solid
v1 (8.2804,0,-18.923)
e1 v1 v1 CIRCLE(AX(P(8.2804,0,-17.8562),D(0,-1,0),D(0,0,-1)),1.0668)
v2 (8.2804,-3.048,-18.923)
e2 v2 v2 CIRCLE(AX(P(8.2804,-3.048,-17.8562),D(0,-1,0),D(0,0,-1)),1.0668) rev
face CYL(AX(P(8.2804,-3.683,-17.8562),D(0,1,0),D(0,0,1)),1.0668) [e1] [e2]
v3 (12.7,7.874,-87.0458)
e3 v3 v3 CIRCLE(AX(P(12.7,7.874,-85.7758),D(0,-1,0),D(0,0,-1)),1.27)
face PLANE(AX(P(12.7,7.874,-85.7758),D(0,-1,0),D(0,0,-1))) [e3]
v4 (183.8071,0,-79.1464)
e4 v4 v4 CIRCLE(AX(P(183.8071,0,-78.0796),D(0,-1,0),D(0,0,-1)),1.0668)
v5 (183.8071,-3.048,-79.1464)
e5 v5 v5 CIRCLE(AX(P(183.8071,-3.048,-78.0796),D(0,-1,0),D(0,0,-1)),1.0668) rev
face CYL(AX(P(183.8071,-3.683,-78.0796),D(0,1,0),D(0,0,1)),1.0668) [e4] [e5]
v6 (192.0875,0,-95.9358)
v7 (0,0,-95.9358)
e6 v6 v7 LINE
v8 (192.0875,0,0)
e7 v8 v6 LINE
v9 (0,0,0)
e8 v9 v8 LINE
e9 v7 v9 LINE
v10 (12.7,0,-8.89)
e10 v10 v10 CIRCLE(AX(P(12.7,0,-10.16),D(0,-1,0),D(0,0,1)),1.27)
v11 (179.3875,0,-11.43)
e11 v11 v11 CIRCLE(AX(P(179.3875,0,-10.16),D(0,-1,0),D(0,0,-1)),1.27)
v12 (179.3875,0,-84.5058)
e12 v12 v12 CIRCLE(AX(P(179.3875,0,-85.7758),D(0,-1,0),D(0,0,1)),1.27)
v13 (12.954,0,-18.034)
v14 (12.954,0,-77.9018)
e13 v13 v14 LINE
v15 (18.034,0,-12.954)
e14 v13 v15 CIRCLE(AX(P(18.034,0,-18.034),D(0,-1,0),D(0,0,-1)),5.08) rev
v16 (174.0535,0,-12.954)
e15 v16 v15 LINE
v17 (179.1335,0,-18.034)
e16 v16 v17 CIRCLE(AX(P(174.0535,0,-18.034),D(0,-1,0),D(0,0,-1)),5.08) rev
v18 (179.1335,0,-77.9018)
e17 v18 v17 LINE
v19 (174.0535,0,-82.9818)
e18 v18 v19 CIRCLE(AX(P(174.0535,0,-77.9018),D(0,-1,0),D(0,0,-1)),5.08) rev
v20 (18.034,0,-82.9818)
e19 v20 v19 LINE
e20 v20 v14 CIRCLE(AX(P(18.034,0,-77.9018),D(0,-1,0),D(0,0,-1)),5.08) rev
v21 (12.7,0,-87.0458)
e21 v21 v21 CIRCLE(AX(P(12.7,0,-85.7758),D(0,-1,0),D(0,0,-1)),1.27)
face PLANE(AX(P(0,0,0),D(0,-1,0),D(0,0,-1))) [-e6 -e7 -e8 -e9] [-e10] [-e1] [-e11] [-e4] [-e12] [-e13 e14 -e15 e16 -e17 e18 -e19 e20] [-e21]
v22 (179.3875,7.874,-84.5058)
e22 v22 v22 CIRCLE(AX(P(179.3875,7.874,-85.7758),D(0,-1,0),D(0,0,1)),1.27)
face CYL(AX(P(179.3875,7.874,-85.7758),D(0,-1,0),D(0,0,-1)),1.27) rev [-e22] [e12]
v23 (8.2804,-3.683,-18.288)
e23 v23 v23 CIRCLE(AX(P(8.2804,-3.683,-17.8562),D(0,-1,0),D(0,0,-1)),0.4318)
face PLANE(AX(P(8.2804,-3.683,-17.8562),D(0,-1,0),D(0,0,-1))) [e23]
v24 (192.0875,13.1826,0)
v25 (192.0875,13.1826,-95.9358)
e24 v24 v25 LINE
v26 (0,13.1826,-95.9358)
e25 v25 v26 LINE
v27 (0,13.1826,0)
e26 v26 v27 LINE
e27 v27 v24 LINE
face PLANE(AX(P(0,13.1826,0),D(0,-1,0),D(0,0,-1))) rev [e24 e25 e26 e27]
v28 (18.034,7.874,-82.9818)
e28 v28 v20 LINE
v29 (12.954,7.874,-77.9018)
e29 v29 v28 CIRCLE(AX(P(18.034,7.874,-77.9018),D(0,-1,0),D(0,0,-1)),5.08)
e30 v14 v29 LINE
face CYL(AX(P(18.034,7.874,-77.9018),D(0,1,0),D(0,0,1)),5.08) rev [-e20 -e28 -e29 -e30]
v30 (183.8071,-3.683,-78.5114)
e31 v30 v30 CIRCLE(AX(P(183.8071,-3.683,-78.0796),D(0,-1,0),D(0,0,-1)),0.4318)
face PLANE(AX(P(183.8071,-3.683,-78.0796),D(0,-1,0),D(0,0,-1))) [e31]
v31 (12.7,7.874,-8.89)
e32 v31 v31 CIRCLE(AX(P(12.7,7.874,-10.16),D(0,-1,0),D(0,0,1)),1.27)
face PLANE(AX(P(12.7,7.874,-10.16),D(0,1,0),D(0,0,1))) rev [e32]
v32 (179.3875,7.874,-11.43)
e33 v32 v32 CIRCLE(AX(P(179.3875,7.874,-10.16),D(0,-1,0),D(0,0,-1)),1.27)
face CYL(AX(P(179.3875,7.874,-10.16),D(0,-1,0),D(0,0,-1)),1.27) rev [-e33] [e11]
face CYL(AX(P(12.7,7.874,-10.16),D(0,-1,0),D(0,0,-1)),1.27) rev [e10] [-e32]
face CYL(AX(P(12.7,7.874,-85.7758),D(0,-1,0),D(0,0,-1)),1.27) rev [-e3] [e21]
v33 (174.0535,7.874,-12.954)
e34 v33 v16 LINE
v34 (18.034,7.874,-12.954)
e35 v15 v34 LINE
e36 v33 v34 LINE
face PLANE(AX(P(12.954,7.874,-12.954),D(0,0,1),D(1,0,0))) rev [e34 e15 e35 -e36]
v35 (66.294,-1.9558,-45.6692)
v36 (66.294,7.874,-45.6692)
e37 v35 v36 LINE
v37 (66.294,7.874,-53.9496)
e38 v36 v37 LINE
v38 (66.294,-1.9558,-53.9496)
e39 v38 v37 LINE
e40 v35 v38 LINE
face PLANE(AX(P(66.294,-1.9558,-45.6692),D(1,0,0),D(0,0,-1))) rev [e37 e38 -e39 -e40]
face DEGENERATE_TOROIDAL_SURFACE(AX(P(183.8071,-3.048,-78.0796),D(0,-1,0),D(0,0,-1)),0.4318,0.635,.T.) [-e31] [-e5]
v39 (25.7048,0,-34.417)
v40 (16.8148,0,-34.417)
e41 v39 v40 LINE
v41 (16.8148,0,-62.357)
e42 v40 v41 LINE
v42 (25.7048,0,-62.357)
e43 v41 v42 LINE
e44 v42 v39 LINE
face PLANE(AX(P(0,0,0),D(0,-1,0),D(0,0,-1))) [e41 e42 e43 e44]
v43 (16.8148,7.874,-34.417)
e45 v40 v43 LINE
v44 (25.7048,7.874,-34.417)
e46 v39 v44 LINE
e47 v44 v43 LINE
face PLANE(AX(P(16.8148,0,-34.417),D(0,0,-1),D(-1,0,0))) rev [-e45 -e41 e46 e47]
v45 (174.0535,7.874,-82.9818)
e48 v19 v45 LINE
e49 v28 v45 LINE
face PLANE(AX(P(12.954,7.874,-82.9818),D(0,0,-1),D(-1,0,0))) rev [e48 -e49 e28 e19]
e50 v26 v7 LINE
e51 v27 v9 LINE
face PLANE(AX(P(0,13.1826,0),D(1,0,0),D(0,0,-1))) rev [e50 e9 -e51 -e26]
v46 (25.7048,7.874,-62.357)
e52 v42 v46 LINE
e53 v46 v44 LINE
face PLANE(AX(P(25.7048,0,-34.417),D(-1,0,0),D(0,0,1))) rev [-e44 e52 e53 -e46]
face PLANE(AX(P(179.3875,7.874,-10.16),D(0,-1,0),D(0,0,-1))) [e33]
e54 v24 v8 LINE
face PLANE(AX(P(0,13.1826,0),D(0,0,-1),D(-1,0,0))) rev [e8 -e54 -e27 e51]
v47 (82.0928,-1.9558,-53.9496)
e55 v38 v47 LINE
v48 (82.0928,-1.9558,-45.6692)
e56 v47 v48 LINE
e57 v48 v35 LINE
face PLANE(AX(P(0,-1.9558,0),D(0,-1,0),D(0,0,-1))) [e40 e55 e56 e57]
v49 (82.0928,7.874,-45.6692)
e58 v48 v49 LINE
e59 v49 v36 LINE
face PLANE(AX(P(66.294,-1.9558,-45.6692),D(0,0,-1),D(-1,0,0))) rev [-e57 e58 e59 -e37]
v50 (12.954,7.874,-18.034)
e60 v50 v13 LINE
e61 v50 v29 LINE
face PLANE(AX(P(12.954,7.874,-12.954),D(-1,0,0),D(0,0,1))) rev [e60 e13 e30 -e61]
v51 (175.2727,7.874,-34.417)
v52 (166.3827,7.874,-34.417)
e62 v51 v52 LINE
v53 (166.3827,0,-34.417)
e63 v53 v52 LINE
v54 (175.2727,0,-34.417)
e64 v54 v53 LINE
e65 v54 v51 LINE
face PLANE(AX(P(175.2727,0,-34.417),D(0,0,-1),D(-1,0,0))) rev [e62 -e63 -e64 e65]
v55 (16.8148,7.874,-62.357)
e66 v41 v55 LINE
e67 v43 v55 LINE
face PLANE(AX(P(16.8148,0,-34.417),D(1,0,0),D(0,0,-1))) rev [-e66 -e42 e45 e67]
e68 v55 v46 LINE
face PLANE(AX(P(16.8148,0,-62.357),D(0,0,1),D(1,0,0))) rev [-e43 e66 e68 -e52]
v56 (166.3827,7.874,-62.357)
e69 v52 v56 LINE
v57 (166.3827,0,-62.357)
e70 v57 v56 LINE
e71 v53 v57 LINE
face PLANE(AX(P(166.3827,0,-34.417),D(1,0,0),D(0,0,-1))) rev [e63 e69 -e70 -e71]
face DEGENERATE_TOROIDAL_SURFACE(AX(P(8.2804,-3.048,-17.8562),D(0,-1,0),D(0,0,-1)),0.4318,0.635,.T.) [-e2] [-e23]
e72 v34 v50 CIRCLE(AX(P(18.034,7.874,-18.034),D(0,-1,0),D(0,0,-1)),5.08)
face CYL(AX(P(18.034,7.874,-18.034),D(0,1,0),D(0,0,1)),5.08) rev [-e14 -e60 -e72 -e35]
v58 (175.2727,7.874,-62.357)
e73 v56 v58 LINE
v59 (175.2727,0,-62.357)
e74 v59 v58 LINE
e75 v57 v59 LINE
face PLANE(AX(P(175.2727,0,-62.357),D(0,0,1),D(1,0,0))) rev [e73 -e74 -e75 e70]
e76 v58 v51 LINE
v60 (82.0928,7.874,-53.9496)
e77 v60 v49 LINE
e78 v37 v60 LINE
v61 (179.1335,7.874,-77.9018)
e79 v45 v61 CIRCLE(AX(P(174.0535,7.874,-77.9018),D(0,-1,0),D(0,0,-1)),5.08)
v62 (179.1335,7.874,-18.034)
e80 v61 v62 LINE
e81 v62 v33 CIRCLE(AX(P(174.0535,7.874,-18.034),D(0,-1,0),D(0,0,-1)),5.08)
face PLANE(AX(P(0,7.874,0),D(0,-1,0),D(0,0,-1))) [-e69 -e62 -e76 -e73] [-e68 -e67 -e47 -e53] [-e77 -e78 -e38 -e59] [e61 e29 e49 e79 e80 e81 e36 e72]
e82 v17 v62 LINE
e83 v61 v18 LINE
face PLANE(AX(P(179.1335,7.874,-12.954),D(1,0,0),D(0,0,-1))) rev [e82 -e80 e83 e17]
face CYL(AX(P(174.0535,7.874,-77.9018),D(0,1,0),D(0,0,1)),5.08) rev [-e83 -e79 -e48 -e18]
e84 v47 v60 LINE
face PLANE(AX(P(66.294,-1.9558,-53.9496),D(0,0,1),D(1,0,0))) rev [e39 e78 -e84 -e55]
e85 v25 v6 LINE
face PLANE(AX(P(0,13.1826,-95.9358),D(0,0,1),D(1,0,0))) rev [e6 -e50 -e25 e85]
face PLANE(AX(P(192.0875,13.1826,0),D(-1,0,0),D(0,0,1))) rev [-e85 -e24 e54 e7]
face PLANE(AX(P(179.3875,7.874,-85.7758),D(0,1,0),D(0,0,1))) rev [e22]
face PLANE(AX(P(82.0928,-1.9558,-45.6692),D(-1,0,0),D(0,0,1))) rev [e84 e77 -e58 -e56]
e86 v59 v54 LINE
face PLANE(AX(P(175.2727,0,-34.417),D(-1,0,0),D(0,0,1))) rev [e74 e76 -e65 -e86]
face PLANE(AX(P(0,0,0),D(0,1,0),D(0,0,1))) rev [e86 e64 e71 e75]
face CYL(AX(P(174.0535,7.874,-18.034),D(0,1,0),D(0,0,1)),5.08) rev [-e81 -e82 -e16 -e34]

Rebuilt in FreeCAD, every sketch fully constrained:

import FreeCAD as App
import Part
import Sketcher

V = App.Vector
Q = App.Units.Quantity


def edges_at(feature, points):
    """Names of the edges that pass closest to the given points."""
    edges = feature.Shape.Edges
    near = lambda p: min(range(len(edges)), key=lambda i: edges[i].distToShape(Part.Vertex(*p))[0])
    return sorted({f"Edge{near(p) + 1}" for p in points})


def add_polygon(sketch, points):
    """Adds a closed chain of lines whose ends are joined by coincident constraints."""
    first, n = sketch.GeometryCount, len(points)
    for a, b in zip(points, points[1:] + points[:1]):
        sketch.addGeometry(Part.LineSegment(App.Vector(*a, 0), App.Vector(*b, 0)), False)
    for i in range(n):
        sketch.addConstraint(Sketcher.Constraint("Coincident", first + i, 2, first + (i + 1) % n, 1))

doc = App.newDocument("Part")
body = doc.addObject("PartDesign::Body", "Body")

# Sketch on XZ plane
sketch1 = body.newObject("Sketcher::SketchObject", "Sketch")
sketch1.AttachmentSupport = (doc.getObject("XZ_Plane"), [""])
sketch1.MapMode = "FlatFace"
add_polygon(sketch1, [(0, -95.9358), (0, 0), (192.0875, 0), (192.0875, -95.9358)])  # lines 0-3
sketch1.addConstraint([
    Sketcher.Constraint("Vertical", 0),
    Sketcher.Constraint("Horizontal", 1),
    Sketcher.Constraint("Vertical", 2),
    Sketcher.Constraint("Horizontal", 3),
    Sketcher.Constraint("Coincident", 0, 2, -1, 1),
    Sketcher.Constraint("DistanceX", 1, 1, 1, 2, Q("7.5625 in")),
    Sketcher.Constraint("DistanceY", 0, 1, 0, 2, Q("3.777 in")),
])
pad1 = body.newObject("PartDesign::Pad", "Pad")
pad1.Profile = sketch1
pad1.Length = Q("0.519 in")
pad1.Reversed = True

# Sketch on XZ plane
sketch2 = body.newObject("Sketcher::SketchObject", "Sketch001")
sketch2.AttachmentSupport = (doc.getObject("XZ_Plane"), [""])
sketch2.MapMode = "FlatFace"
add_polygon(sketch2, [(12.954, -12.954), (12.954, -82.9818), (179.1335, -82.9818), (179.1335, -12.954)])  # lines 0-3
sketch2.addConstraint([
    Sketcher.Constraint("Vertical", 0),
    Sketcher.Constraint("Horizontal", 1),
    Sketcher.Constraint("Vertical", 2),
    Sketcher.Constraint("Horizontal", 3),
    Sketcher.Constraint("DistanceY", 0, 2, 0, 1, Q("2.757 in")),
    Sketcher.Constraint("DistanceX", -1, 1, 0, 2, Q("0.51 in")),
    Sketcher.Constraint("DistanceY", 2, 2, -1, 1, Q("0.51 in")),
    Sketcher.Constraint("DistanceX", 1, 1, 1, 2, Q("6.5425 in")),
])
pocket1 = body.newObject("PartDesign::Pocket", "Pocket")
pocket1.Profile = sketch2
pocket1.Length = Q("0.31 in")

# Sketch on XZ plane
sketch3 = body.newObject("Sketcher::SketchObject", "Sketch002")
sketch3.AttachmentSupport = (doc.getObject("XZ_Plane"), [""])
sketch3.MapMode = "FlatFace"
sketch3.addGeometry([
    Part.Circle(V(12.7, -85.7758, 0), V(0, 0, 1), 1.27),
    Part.Circle(V(12.7, -10.16, 0), V(0, 0, 1), 1.27),
    Part.Circle(V(179.3875, -85.7758, 0), V(0, 0, 1), 1.27),
    Part.Circle(V(179.3875, -10.16, 0), V(0, 0, 1), 1.27),
], False)
sketch3.addConstraint([
    Sketcher.Constraint("Equal", 0, 1),
    Sketcher.Constraint("Equal", 1, 2),
    Sketcher.Constraint("Equal", 2, 3),
    Sketcher.Constraint("Horizontal", 0, 3, 2, 3),
    Sketcher.Constraint("Horizontal", 1, 3, 3, 3),
    Sketcher.Constraint("Vertical", 0, 3, 1, 3),
    Sketcher.Constraint("Vertical", 2, 3, 3, 3),
    Sketcher.Constraint("Diameter", 0, Q("0.1 in")),
    Sketcher.Constraint("DistanceX", -1, 1, 0, 3, Q("0.5 in")),
    Sketcher.Constraint("DistanceY", 1, 3, -1, 1, Q("0.4 in")),
    Sketcher.Constraint("DistanceY", 0, 3, -1, 1, Q("3.377 in")),
    Sketcher.Constraint("DistanceX", -1, 1, 2, 3, Q("7.0625 in")),
])
pocket2 = body.newObject("PartDesign::Pocket", "Pocket001")
pocket2.Profile = sketch3
pocket2.Length = Q("0.31 in")

# Sketch on XZ plane
sketch4 = body.newObject("Sketcher::SketchObject", "Sketch003")
sketch4.AttachmentSupport = (doc.getObject("XZ_Plane"), [""])
sketch4.MapMode = "FlatFace"
sketch4.AttachmentOffset = App.Placement(V(0, 0, -0.31 * 25.4), App.Rotation())
add_polygon(sketch4, [(82.0928, -53.9496), (82.0928, -45.6692), (66.294, -45.6692), (66.294, -53.9496)])  # lines 0-3
sketch4.addConstraint([
    Sketcher.Constraint("Vertical", 0),
    Sketcher.Constraint("Horizontal", 1),
    Sketcher.Constraint("Vertical", 2),
    Sketcher.Constraint("Horizontal", 3),
    Sketcher.Constraint("DistanceX", 1, 2, 1, 1, Q("0.622 in")),
    Sketcher.Constraint("DistanceY", 0, 1, 0, 2, Q("0.326 in")),
    Sketcher.Constraint("DistanceX", -1, 1, 1, 2, Q("2.61 in")),
    Sketcher.Constraint("DistanceY", 0, 2, -1, 1, Q("1.798 in")),
])
pad2 = body.newObject("PartDesign::Pad", "Pad001")
pad2.Profile = sketch4
pad2.Length = Q("0.387 in")

# Sketch on XZ plane
sketch5 = body.newObject("Sketcher::SketchObject", "Sketch004")
sketch5.AttachmentSupport = (doc.getObject("XZ_Plane"), [""])
sketch5.MapMode = "FlatFace"
sketch5.AttachmentOffset = App.Placement(V(0, 0, -0.31 * 25.4), App.Rotation())
add_polygon(sketch5, [(25.7048, -62.357), (25.7048, -34.417), (16.8148, -34.417), (16.8148, -62.357)])  # lines 0-3
add_polygon(sketch5, [(175.2727, -62.357), (175.2727, -34.417), (166.3827, -34.417), (166.3827, -62.357)])  # lines 4-7
sketch5.addConstraint([
    Sketcher.Constraint("Vertical", 0),
    Sketcher.Constraint("Horizontal", 1),
    Sketcher.Constraint("Vertical", 2),
    Sketcher.Constraint("Horizontal", 3),
    Sketcher.Constraint("Vertical", 4),
    Sketcher.Constraint("Horizontal", 5),
    Sketcher.Constraint("Vertical", 6),
    Sketcher.Constraint("Horizontal", 7),
    Sketcher.Constraint("Horizontal", 1, 2, 4, 2),
    Sketcher.Constraint("Horizontal", 3, 2, 6, 2),
    Sketcher.Constraint("Equal", 3, 5),
    Sketcher.Constraint("DistanceY", 0, 1, 0, 2, Q("1.1 in")),
    Sketcher.Constraint("DistanceX", 1, 2, 1, 1, Q("0.35 in")),
    Sketcher.Constraint("DistanceX", -1, 1, 0, 2, Q("1.012 in")),
    Sketcher.Constraint("DistanceY", 0, 2, -1, 1, Q("1.355 in")),
    Sketcher.Constraint("DistanceX", -1, 1, 4, 2, Q("6.9005 in")),
])
pad3 = body.newObject("PartDesign::Pad", "Pad002")
pad3.Profile = sketch5
pad3.Length = Q("0.31 in")

# Sketch on XZ plane
sketch6 = body.newObject("Sketcher::SketchObject", "Sketch005")
sketch6.AttachmentSupport = (doc.getObject("XZ_Plane"), [""])
sketch6.MapMode = "FlatFace"
sketch6.addGeometry([
    Part.Circle(V(8.2804, -17.8562, 0), V(0, 0, 1), 1.0668),
    Part.Circle(V(183.8071, -78.0796, 0), V(0, 0, 1), 1.0668),
], False)
sketch6.addConstraint([
    Sketcher.Constraint("Equal", 0, 1),
    Sketcher.Constraint("Diameter", 0, Q("0.084 in")),
    Sketcher.Constraint("DistanceX", -1, 1, 0, 3, Q("0.326 in")),
    Sketcher.Constraint("DistanceY", 0, 3, -1, 1, Q("0.703 in")),
    Sketcher.Constraint("DistanceY", 1, 3, -1, 1, Q("3.074 in")),
    Sketcher.Constraint("DistanceX", -1, 1, 1, 3, Q("7.2365 in")),
])
pad4 = body.newObject("PartDesign::Pad", "Pad003")
pad4.Profile = sketch6
pad4.Length = Q("0.145 in")
doc.recompute()

fillet = body.newObject("PartDesign::Fillet", "Fillet")
fillet.Base = (pad4, edges_at(pad4, [
    (12.954, 3.937, -82.982),
    (12.954, 3.937, -12.954),
    (179.133, 3.937, -12.954),
    (179.133, 3.937, -82.982),
]))
fillet.Radius = Q("0.2 in")
doc.recompute()

fillet2 = body.newObject("PartDesign::Fillet", "Fillet001")
fillet2.Base = (fillet, edges_at(fillet, [(9.347, -3.683, -17.856), (184.874, -3.683, -78.08)]))
fillet2.Radius = Q("0.025 in")

doc.recompute()
